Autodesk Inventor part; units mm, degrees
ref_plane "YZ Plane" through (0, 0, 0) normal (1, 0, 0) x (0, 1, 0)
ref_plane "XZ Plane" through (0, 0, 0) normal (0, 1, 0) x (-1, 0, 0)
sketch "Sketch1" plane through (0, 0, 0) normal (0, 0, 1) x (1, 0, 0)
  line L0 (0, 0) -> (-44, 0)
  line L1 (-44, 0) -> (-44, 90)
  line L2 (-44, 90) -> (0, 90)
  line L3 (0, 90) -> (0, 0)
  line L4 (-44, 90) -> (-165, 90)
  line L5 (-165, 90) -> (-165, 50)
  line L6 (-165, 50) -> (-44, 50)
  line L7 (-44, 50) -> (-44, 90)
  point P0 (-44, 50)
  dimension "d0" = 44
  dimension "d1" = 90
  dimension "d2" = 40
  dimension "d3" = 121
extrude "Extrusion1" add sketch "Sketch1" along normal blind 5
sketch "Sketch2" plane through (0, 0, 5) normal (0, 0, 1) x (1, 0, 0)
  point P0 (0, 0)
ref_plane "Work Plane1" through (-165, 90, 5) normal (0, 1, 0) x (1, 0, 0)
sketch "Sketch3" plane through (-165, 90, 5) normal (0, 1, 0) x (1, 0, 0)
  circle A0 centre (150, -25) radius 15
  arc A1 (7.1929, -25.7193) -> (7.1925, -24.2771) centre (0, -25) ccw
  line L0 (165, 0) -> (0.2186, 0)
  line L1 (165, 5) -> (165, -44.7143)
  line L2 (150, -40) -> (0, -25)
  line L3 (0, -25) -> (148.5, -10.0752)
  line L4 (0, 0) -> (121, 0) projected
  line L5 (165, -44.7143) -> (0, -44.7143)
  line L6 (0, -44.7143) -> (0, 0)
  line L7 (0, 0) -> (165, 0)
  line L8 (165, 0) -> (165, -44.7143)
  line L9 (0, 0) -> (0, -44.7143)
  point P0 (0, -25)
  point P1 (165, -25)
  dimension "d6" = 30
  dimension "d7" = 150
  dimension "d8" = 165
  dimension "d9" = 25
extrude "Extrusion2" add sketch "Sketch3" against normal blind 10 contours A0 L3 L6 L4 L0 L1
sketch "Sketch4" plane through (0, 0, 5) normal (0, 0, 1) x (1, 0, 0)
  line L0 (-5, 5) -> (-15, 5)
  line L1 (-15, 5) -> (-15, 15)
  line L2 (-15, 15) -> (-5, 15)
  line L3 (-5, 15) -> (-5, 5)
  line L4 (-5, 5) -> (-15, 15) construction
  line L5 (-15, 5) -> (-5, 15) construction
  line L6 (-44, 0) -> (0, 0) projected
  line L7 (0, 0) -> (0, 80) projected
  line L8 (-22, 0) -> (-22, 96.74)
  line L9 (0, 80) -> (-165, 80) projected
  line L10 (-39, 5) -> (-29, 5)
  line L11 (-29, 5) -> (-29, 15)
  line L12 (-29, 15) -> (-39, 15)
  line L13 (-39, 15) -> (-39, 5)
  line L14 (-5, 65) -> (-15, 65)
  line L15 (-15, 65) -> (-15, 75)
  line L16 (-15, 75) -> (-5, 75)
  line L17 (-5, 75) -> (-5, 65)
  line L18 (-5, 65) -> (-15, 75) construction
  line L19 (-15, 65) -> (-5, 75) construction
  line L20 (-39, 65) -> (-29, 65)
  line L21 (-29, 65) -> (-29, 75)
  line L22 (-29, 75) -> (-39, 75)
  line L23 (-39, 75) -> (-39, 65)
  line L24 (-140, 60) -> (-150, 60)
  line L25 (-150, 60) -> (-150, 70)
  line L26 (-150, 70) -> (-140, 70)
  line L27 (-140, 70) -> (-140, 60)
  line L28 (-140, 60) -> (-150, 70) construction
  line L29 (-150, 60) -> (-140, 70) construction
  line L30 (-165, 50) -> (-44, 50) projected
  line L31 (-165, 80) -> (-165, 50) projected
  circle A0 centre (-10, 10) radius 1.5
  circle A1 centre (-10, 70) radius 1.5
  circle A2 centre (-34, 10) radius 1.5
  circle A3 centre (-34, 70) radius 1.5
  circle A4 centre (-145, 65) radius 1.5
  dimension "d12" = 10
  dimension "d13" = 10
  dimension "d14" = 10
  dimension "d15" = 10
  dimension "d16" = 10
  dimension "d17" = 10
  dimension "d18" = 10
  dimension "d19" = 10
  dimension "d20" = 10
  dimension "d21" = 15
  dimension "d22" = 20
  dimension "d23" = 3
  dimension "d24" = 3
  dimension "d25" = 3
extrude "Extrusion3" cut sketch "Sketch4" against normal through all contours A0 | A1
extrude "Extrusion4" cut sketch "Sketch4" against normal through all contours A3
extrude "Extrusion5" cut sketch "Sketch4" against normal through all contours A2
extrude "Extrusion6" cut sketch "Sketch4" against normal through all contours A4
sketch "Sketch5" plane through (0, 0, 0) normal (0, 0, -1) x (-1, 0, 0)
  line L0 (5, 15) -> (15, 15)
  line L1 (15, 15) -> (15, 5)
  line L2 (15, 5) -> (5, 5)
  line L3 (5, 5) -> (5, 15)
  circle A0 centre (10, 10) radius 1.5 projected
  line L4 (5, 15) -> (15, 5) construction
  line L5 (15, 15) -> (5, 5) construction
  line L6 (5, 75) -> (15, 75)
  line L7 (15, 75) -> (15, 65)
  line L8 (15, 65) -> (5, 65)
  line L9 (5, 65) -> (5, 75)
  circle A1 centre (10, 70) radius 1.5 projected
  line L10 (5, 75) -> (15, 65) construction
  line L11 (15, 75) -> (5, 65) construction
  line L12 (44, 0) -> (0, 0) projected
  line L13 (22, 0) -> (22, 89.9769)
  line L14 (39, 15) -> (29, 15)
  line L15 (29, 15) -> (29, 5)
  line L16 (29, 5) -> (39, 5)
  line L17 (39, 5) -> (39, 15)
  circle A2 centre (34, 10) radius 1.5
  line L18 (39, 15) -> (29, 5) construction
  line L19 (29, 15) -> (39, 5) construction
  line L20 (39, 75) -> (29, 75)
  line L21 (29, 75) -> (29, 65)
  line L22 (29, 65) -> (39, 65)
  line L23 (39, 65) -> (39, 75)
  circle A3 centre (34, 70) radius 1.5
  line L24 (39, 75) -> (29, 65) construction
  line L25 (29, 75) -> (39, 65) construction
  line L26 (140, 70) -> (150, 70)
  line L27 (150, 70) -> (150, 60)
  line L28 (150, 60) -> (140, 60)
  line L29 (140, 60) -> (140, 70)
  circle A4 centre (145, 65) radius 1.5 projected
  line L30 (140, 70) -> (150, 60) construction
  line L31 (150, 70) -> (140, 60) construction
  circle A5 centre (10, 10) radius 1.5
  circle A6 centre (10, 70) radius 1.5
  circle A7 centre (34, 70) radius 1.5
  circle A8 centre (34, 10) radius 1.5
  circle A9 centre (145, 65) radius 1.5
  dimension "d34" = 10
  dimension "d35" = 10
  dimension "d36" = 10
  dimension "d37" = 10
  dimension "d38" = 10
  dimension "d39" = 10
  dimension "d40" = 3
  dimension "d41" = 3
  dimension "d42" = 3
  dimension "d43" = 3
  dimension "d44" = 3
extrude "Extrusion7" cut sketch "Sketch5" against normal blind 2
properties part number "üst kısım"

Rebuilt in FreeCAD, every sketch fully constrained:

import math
import FreeCAD as App
import Part
import Sketcher


def add_polygon(sketch, points):
    """Adds a closed chain of lines whose ends are joined by coincident constraints."""
    first, n = sketch.GeometryCount, len(points)
    for a, b in zip(points, points[1:] + points[:1]):
        sketch.addGeometry(Part.LineSegment(App.Vector(*a, 0), App.Vector(*b, 0)), False)
    for i in range(n):
        sketch.addConstraint(Sketcher.Constraint("Coincident", first + i, 2, first + (i + 1) % n, 1))

doc = App.newDocument("Part")
body = doc.addObject("PartDesign::Body", "Body")

# Sketch on XY plane
sketch1 = body.newObject("Sketcher::SketchObject", "Sketch")
sketch1.AttachmentSupport = (doc.getObject("XY_Plane"), [""])
sketch1.MapMode = "FlatFace"
add_polygon(sketch1, [(-44, 0), (0, 0), (0, 90), (-165, 90), (-165, 50), (-44, 50)])  # lines 0-5
sketch1.addConstraint([
    Sketcher.Constraint("Horizontal", 0),
    Sketcher.Constraint("Vertical", 1),
    Sketcher.Constraint("Horizontal", 2),
    Sketcher.Constraint("Vertical", 3),
    Sketcher.Constraint("Horizontal", 4),
    Sketcher.Constraint("Vertical", 5),
    Sketcher.Constraint("Coincident", 0, 2, -1, 1),
    Sketcher.Constraint("DistanceX", 0, 1, 0, 2, 44.0),
    Sketcher.Constraint("DistanceX", 4, 1, 4, 2, 121.0),
    Sketcher.Constraint("DistanceY", 1, 1, 1, 2, 90.0),
    Sketcher.Constraint("DistanceY", 3, 2, 3, 1, 40.0),
])
pad1 = body.newObject("PartDesign::Pad", "Pad")
pad1.Profile = sketch1
pad1.Length = 5

# Sketch on XZ plane
sketch2 = body.newObject("Sketcher::SketchObject", "Sketch001")
sketch2.AttachmentSupport = (doc.getObject("XZ_Plane"), [""])
sketch2.MapMode = "FlatFace"
sketch2.AttachmentOffset = App.Placement(App.Vector(0, 0, -90), App.Rotation())
sketch2.addGeometry([
    Part.ArcOfCircle(Part.Circle(App.Vector(-15, 30, 0), App.Vector(0, 0, 1), 15), math.radians(-96), math.radians(0)),  # 0
    Part.LineSegment(App.Vector(0, 30, 0), App.Vector(0, 5, 0)),  # 1
    Part.LineSegment(App.Vector(0, 5, 0), App.Vector(-165, 5, 0)),  # 2
    Part.LineSegment(App.Vector(-165, 5, 0), App.Vector(-165, 30, 0)),  # 3
    Part.LineSegment(App.Vector(-165, 30, 0), App.Vector(-16, 15, 0)),  # 4
], False)
sketch2.addConstraint([
    Sketcher.Constraint("Tangent", 0, 2, 1, 1),
    Sketcher.Constraint("Coincident", 1, 2, 2, 1),
    Sketcher.Constraint("Coincident", 2, 2, 3, 1),
    Sketcher.Constraint("Coincident", 3, 2, 4, 1),
    Sketcher.Constraint("Tangent", 4, 2, 0, 1),
    Sketcher.Constraint("Vertical", 1),
    Sketcher.Constraint("Horizontal", 2),
    Sketcher.Constraint("Vertical", 3),
    Sketcher.Constraint("PointOnObject", 0, 2, -2),
    Sketcher.Constraint("Horizontal", 0, 2, 3, 2),
    Sketcher.Constraint("Radius", 0, 15.0),
    Sketcher.Constraint("DistanceX", 2, 2, 2, 1, 165.0),
    Sketcher.Constraint("DistanceY", 1, 2, 1, 1, 25.0),
    Sketcher.Constraint("DistanceY", -1, 1, 0, 3, 30.0),
])
pad2 = body.newObject("PartDesign::Pad", "Pad001")
pad2.Profile = sketch2
pad2.Length = 10

# Sketch on XY plane
sketch3 = body.newObject("Sketcher::SketchObject", "Sketch002")
sketch3.AttachmentSupport = (doc.getObject("XY_Plane"), [""])
sketch3.MapMode = "FlatFace"
sketch3.AttachmentOffset = App.Placement(App.Vector(0, 0, 5), App.Rotation())
sketch3.addGeometry([
    Part.Circle(App.Vector(-10, 10, 0), App.Vector(0, 0, 1), 1.5),
    Part.Circle(App.Vector(-10, 70, 0), App.Vector(0, 0, 1), 1.5),
], False)
sketch3.addConstraint([
    Sketcher.Constraint("Equal", 0, 1),
    Sketcher.Constraint("Vertical", 0, 3, 1, 3),
    Sketcher.Constraint("Diameter", 0, 3.0),
    Sketcher.Constraint("DistanceX", 0, 3, -1, 1, 10.0),
    Sketcher.Constraint("DistanceY", -1, 1, 0, 3, 10.0),
    Sketcher.Constraint("DistanceY", -1, 1, 1, 3, 70.0),
])
pocket1 = body.newObject("PartDesign::Pocket", "Pocket")
pocket1.Profile = sketch3
pocket1.Type = "ThroughAll"

# Sketch on XY plane
sketch4 = body.newObject("Sketcher::SketchObject", "Sketch003")
sketch4.AttachmentSupport = (doc.getObject("XY_Plane"), [""])
sketch4.MapMode = "FlatFace"
sketch4.AttachmentOffset = App.Placement(App.Vector(0, 0, 5), App.Rotation())
sketch4.addGeometry(Part.Circle(App.Vector(-34, 70, 0), App.Vector(0, 0, 1), 1.5), False)
sketch4.addConstraint([
    Sketcher.Constraint("Diameter", 0, 3.0),
    Sketcher.Constraint("DistanceX", 0, 3, -1, 1, 34.0),
    Sketcher.Constraint("DistanceY", -1, 1, 0, 3, 70.0),
])
pocket2 = body.newObject("PartDesign::Pocket", "Pocket001")
pocket2.Profile = sketch4
pocket2.Type = "ThroughAll"

# Sketch on XY plane
sketch5 = body.newObject("Sketcher::SketchObject", "Sketch004")
sketch5.AttachmentSupport = (doc.getObject("XY_Plane"), [""])
sketch5.MapMode = "FlatFace"
sketch5.AttachmentOffset = App.Placement(App.Vector(0, 0, 5), App.Rotation())
sketch5.addGeometry(Part.Circle(App.Vector(-34, 10, 0), App.Vector(0, 0, 1), 1.5), False)
sketch5.addConstraint([
    Sketcher.Constraint("Diameter", 0, 3.0),
    Sketcher.Constraint("DistanceY", -1, 1, 0, 3, 10.0),
    Sketcher.Constraint("DistanceX", 0, 3, -1, 1, 34.0),
])
pocket3 = body.newObject("PartDesign::Pocket", "Pocket002")
pocket3.Profile = sketch5
pocket3.Type = "ThroughAll"

# Sketch on XY plane
sketch6 = body.newObject("Sketcher::SketchObject", "Sketch005")
sketch6.AttachmentSupport = (doc.getObject("XY_Plane"), [""])
sketch6.MapMode = "FlatFace"
sketch6.AttachmentOffset = App.Placement(App.Vector(0, 0, 5), App.Rotation())
sketch6.addGeometry(Part.Circle(App.Vector(-145, 65, 0), App.Vector(0, 0, 1), 1.5), False)
sketch6.addConstraint([
    Sketcher.Constraint("Diameter", 0, 3.0),
    Sketcher.Constraint("DistanceX", 0, 3, -1, 1, 145.0),
    Sketcher.Constraint("DistanceY", -1, 1, 0, 3, 65.0),
])
pocket4 = body.newObject("PartDesign::Pocket", "Pocket003")
pocket4.Profile = sketch6
pocket4.Type = "ThroughAll"

# Sketch on XY plane
sketch7 = body.newObject("Sketcher::SketchObject", "Sketch006")
sketch7.AttachmentSupport = (doc.getObject("XY_Plane"), [""])
sketch7.MapMode = "FlatFace"
add_polygon(sketch7, [(-15, 15), (-5, 15), (-5, 5), (-15, 5)])  # lines 0-3
sketch7.addGeometry(Part.Circle(App.Vector(-10, 10, 0), App.Vector(0, 0, 1), 1.5), False)  # 4
add_polygon(sketch7, [(-15, 75), (-5, 75), (-5, 65), (-15, 65)])  # lines 5-8
sketch7.addGeometry(Part.Circle(App.Vector(-10, 70, 0), App.Vector(0, 0, 1), 1.5), False)  # 9
add_polygon(sketch7, [(-39, 5), (-39, 15), (-29, 15), (-29, 5)])  # lines 10-13
sketch7.addGeometry(Part.Circle(App.Vector(-34, 10, 0), App.Vector(0, 0, 1), 1.5), False)  # 14
add_polygon(sketch7, [(-39, 65), (-39, 75), (-29, 75), (-29, 65)])  # lines 15-18
sketch7.addGeometry(Part.Circle(App.Vector(-34, 70, 0), App.Vector(0, 0, 1), 1.5), False)  # 19
add_polygon(sketch7, [(-150, 70), (-140, 70), (-140, 60), (-150, 60)])  # lines 20-23
sketch7.addGeometry(Part.Circle(App.Vector(-145, 65, 0), App.Vector(0, 0, 1), 1.5), False)  # 24
sketch7.addConstraint([
    Sketcher.Constraint("Horizontal", 0),
    Sketcher.Constraint("Vertical", 1),
    Sketcher.Constraint("Horizontal", 2),
    Sketcher.Constraint("Vertical", 3),
    Sketcher.Constraint("Horizontal", 5),
    Sketcher.Constraint("Vertical", 6),
    Sketcher.Constraint("Horizontal", 7),
    Sketcher.Constraint("Vertical", 8),
    Sketcher.Constraint("Vertical", 10),
    Sketcher.Constraint("Horizontal", 11),
    Sketcher.Constraint("Vertical", 12),
    Sketcher.Constraint("Horizontal", 13),
    Sketcher.Constraint("Vertical", 15),
    Sketcher.Constraint("Horizontal", 16),
    Sketcher.Constraint("Vertical", 17),
    Sketcher.Constraint("Horizontal", 18),
    Sketcher.Constraint("Horizontal", 20),
    Sketcher.Constraint("Vertical", 21),
    Sketcher.Constraint("Horizontal", 22),
    Sketcher.Constraint("Vertical", 23),
    Sketcher.Constraint("Equal", 4, 9),
    Sketcher.Constraint("Equal", 9, 14),
    Sketcher.Constraint("Equal", 14, 19),
    Sketcher.Constraint("Equal", 19, 24),
    Sketcher.Constraint("Horizontal", 4, 3, 14, 3),
    Sketcher.Constraint("Horizontal", 9, 3, 19, 3),
    Sketcher.Constraint("Horizontal", 24, 3, 6, 2),
    Sketcher.Constraint("Horizontal", 3, 2, 10, 2),
    Sketcher.Constraint("Horizontal", 2, 2, 12, 2),
    Sketcher.Constraint("Horizontal", 8, 2, 15, 2),
    Sketcher.Constraint("Horizontal", 7, 2, 17, 2),
    Sketcher.Constraint("Horizontal", 19, 3, 20, 2),
    Sketcher.Constraint("Vertical", 4, 3, 9, 3),
    Sketcher.Constraint("Vertical", 14, 3, 19, 3),
    Sketcher.Constraint("Vertical", 1, 2, 5, 2),
    Sketcher.Constraint("Vertical", 3, 2, 7, 2),
    Sketcher.Constraint("Vertical", 13, 2, 15, 2),
    Sketcher.Constraint("Vertical", 12, 2, 16, 2),
    Sketcher.Constraint("Equal", 7, 11),
    Sketcher.Constraint("Equal", 18, 20),
    Sketcher.Constraint("Equal", 22, 1),
    Sketcher.Constraint("Equal", 3, 6),
    Sketcher.Constraint("Equal", 17, 21),
    Sketcher.Constraint("Diameter", 4, 3.0),
    Sketcher.Constraint("DistanceX", 0, 1, 0, 2, 10.0),
    Sketcher.Constraint("DistanceX", 4, 3, -1, 1, 10.0),
    Sketcher.Constraint("DistanceY", -1, 1, 4, 3, 10.0),
    Sketcher.Constraint("DistanceY", -1, 1, 9, 3, 70.0),
    Sketcher.Constraint("DistanceX", 14, 3, -1, 1, 34.0),
    Sketcher.Constraint("DistanceX", 24, 3, -1, 1, 145.0),
    Sketcher.Constraint("DistanceY", -1, 1, 24, 3, 65.0),
    Sketcher.Constraint("DistanceX", 0, 2, -1, 1, 5.0),
    Sketcher.Constraint("DistanceY", -1, 1, 0, 2, 15.0),
    Sketcher.Constraint("DistanceX", 10, 2, -1, 1, 39.0),
    Sketcher.Constraint("DistanceX", 20, 2, -1, 1, 140.0),
])
pocket5 = body.newObject("PartDesign::Pocket", "Pocket004")
pocket5.Profile = sketch7
pocket5.Length = 2
pocket5.Reversed = True

doc.recompute()
